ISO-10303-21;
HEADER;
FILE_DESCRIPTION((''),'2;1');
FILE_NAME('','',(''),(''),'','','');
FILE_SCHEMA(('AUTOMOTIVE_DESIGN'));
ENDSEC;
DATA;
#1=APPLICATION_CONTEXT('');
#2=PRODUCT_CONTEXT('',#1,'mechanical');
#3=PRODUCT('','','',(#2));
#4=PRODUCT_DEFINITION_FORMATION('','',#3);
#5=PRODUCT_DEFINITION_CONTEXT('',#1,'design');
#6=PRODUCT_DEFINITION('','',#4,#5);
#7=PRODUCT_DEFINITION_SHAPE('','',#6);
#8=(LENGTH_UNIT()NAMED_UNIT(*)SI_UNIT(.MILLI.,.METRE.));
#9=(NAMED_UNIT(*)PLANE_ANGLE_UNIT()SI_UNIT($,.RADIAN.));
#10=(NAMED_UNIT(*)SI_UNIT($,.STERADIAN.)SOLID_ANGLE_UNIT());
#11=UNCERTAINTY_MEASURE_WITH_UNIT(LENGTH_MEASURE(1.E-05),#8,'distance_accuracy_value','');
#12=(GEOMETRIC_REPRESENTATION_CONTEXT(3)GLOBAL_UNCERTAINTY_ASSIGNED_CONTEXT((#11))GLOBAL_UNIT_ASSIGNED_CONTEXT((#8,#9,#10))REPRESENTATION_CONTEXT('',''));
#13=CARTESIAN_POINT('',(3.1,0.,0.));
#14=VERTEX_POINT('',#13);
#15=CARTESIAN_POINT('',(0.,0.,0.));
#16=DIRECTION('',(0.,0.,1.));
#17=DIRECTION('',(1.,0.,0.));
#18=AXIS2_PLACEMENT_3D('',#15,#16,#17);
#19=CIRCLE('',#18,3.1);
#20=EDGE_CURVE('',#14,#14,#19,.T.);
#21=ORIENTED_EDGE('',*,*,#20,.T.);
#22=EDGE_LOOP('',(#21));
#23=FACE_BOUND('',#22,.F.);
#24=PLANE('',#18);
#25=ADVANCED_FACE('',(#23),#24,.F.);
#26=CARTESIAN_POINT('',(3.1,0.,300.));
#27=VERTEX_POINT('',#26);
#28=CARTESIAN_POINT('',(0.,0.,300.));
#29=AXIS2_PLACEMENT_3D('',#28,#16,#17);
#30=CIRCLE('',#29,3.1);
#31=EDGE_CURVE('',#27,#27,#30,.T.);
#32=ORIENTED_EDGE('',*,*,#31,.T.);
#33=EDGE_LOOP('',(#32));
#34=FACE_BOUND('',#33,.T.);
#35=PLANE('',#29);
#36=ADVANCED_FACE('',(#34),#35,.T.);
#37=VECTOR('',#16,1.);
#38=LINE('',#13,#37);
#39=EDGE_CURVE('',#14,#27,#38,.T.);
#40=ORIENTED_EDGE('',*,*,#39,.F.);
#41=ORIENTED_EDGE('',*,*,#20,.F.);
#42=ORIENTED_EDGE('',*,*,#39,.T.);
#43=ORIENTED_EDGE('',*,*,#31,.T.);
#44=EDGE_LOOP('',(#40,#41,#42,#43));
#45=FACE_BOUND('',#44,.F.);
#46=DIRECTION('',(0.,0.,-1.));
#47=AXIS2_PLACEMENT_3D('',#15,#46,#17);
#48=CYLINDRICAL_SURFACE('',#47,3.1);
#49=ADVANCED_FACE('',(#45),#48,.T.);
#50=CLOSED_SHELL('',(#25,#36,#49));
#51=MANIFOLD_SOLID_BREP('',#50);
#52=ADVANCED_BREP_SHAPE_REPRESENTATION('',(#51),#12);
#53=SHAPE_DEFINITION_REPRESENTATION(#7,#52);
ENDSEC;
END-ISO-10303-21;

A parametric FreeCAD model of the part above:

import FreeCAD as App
import Part
import Sketcher
Q = App.Units.Quantity

doc = App.newDocument("Part")
params = doc.addObject("Spreadsheet::Sheet", "Params")
for row, (alias, value) in enumerate([
    ("sketch1_diameter", "6.2 mm"),
    ("pad1_length", "300 mm"),
], start=1):
    params.set(f"A{row}", alias)
    params.set(f"B{row}", "=" + value)
    params.setAlias(f"B{row}", alias)

body = doc.addObject("PartDesign::Body", "Body")

# Sketch on XY plane
sketch1 = body.newObject("Sketcher::SketchObject", "Sketch")
sketch1.AttachmentSupport = (doc.getObject("XY_Plane"), [""])
sketch1.MapMode = "FlatFace"
sketch1.addGeometry(Part.Circle(App.Vector(0, 0, 0), App.Vector(0, 0, 1), 3.1), False)
sketch1.addConstraint(Sketcher.Constraint("Coincident", 0, 3, -1, 1))
sketch1.addConstraint(Sketcher.Constraint("Diameter", 0, Q("6.2 mm")))
sketch1.setExpression("Constraints[1]", "Params.sketch1_diameter")
pad1 = body.newObject("PartDesign::Pad", "Pad")
pad1.Profile = sketch1
pad1.setExpression("Length", "Params.pad1_length")

doc.recompute()
